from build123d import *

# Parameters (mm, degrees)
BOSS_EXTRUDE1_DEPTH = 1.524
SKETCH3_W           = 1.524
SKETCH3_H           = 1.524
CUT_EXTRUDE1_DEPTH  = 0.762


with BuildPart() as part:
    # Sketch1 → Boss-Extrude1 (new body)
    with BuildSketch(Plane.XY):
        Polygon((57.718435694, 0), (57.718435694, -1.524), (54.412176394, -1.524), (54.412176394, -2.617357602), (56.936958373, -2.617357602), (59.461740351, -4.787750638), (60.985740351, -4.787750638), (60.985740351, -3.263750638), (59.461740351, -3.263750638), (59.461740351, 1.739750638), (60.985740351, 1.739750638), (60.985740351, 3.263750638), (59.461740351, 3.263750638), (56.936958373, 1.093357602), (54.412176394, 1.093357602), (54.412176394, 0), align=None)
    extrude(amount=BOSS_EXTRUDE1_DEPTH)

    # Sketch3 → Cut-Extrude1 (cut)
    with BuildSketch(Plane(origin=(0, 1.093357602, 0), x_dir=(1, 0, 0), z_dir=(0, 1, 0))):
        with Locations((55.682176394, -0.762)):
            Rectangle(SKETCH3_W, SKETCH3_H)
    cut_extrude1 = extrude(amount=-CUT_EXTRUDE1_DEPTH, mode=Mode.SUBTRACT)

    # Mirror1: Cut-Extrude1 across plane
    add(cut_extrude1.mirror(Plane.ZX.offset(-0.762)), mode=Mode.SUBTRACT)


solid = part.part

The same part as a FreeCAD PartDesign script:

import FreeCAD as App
import Part
import Sketcher
Q = App.Units.Quantity


def add_polygon(sketch, points):
    """Adds a closed chain of lines whose ends are joined by coincident constraints."""
    first, n = sketch.GeometryCount, len(points)
    for a, b in zip(points, points[1:] + points[:1]):
        sketch.addGeometry(Part.LineSegment(App.Vector(*a, 0), App.Vector(*b, 0)), False)
    for i in range(n):
        sketch.addConstraint(Sketcher.Constraint("Coincident", first + i, 2, first + (i + 1) % n, 1))

doc = App.newDocument("Part")
body = doc.addObject("PartDesign::Body", "Body")

# Sketch on XY plane
sketch1 = body.newObject("Sketcher::SketchObject", "Sketch")
sketch1.AttachmentSupport = (doc.getObject("XY_Plane"), [""])
sketch1.MapMode = "FlatFace"
add_polygon(sketch1, [(57.7, 0), (57.7, -1.5), (54.4, -1.5), (54.4, -2.6), (56.9, -2.6), (59.5, -4.8), (61, -4.8), (61, -3.3), (59.5, -3.3), (59.5, 1.7), (61, 1.7), (61, 3.3), (59.5, 3.3), (56.9, 1.1), (54.4, 1.1), (54.4, 0)])  # lines 0-15
sketch1.addConstraint(Sketcher.Constraint("Vertical", 0))
sketch1.addConstraint(Sketcher.Constraint("Horizontal", 1))
sketch1.addConstraint(Sketcher.Constraint("Vertical", 2))
sketch1.addConstraint(Sketcher.Constraint("Horizontal", 3))
sketch1.addConstraint(Sketcher.Constraint("Horizontal", 5))
sketch1.addConstraint(Sketcher.Constraint("Vertical", 6))
sketch1.addConstraint(Sketcher.Constraint("Horizontal", 7))
sketch1.addConstraint(Sketcher.Constraint("Vertical", 8))
sketch1.addConstraint(Sketcher.Constraint("Horizontal", 9))
sketch1.addConstraint(Sketcher.Constraint("Vertical", 10))
sketch1.addConstraint(Sketcher.Constraint("Horizontal", 11))
sketch1.addConstraint(Sketcher.Constraint("Horizontal", 13))
sketch1.addConstraint(Sketcher.Constraint("Vertical", 14))
sketch1.addConstraint(Sketcher.Constraint("Horizontal", 15))
sketch1.addConstraint(Sketcher.Constraint("Symmetric", 6, 2, 10, 2, -1))
sketch1.addConstraint(Sketcher.Constraint("PointOnObject", 14, 2, -1))
sketch1.addConstraint(Sketcher.Constraint("Vertical", 4, 2, 7, 2))
sketch1.addConstraint(Sketcher.Constraint("Vertical", 8, 2, 11, 2))
sketch1.addConstraint(Sketcher.Constraint("Vertical", 3, 2, 12, 2))
sketch1.addConstraint(Sketcher.Constraint("Vertical", 2, 2, 13, 2))
sketch1.addConstraint(Sketcher.Constraint("Equal", 11, 0))
sketch1.addConstraint(Sketcher.Constraint("Equal", 0, 6))
sketch1.addConstraint(Sketcher.Constraint("Equal", 6, 10))
sketch1.addConstraint(Sketcher.Constraint("Equal", 2, 14))
sketch1.addConstraint(Sketcher.Constraint("DistanceX", 5, 1, 5, 2, Q("0.06 in")))
sketch1.addConstraint(Sketcher.Constraint("DistanceY", 8, 1, 8, 2, Q("5.003501 mm")))
sketch1.addConstraint(Sketcher.Constraint("DistanceX", 1, 2, 1, 1, Q("3.306259 mm")))
sketch1.addConstraint(Sketcher.Constraint("DistanceX", 3, 1, 3, 2, Q("2.524782 mm")))
sketch1.addConstraint(Sketcher.Constraint("DistanceY", 2, 2, 2, 1, Q("1.093358 mm")))
sketch1.addConstraint(Sketcher.Constraint("DistanceX", -1, 1, 3, 2, Q("56.936958 mm")))
sketch1.addConstraint(Sketcher.Constraint("DistanceX", -1, 1, 4, 2, Q("59.46174 mm")))
pad1 = body.newObject("PartDesign::Pad", "Pad")
pad1.Profile = sketch1
pad1.Length = Q("0.06 in")

# Sketch on XZ plane
sketch2 = body.newObject("Sketcher::SketchObject", "Sketch001")
sketch2.AttachmentSupport = (doc.getObject("XZ_Plane"), [""])
sketch2.MapMode = "FlatFace"
sketch2.AttachmentOffset = App.Placement(App.Vector(0, 0, -1.093358), App.Rotation())
add_polygon(sketch2, [(54.9, 0), (54.9, 1.5), (56.4, 1.5), (56.4, 0)])  # lines 0-3
sketch2.addConstraint(Sketcher.Constraint("Vertical", 0))
sketch2.addConstraint(Sketcher.Constraint("Horizontal", 1))
sketch2.addConstraint(Sketcher.Constraint("Vertical", 2))
sketch2.addConstraint(Sketcher.Constraint("Horizontal", 3))
sketch2.addConstraint(Sketcher.Constraint("PointOnObject", 2, 2, -1))
sketch2.addConstraint(Sketcher.Constraint("Equal", 3, 0))
sketch2.addConstraint(Sketcher.Constraint("DistanceX", 1, 1, 1, 2, Q("0.06 in")))
sketch2.addConstraint(Sketcher.Constraint("DistanceX", -1, 1, 0, 2, Q("54.920176 mm")))
pocket1 = body.newObject("PartDesign::Pocket", "Pocket")
pocket1.Profile = sketch2
pocket1.Length = Q("0.03 in")
pocket1.Reversed = True
doc.recompute()

datumplane = body.newObject("PartDesign::Plane", "DatumPlane")
datumplane.AttachmentSupport = (doc.getObject("XZ_Plane"), [""])
datumplane.MapMode = "FlatFace"
datumplane.AttachmentOffset = App.Placement(App.Vector(0, 0, 0.03 * 25.4), App.Rotation())
mirrored = body.newObject("PartDesign::Mirrored", "Mirrored")
mirrored.Originals = [pocket1]
mirrored.MirrorPlane = (datumplane, [""])
body.Tip = mirrored

doc.recompute()
